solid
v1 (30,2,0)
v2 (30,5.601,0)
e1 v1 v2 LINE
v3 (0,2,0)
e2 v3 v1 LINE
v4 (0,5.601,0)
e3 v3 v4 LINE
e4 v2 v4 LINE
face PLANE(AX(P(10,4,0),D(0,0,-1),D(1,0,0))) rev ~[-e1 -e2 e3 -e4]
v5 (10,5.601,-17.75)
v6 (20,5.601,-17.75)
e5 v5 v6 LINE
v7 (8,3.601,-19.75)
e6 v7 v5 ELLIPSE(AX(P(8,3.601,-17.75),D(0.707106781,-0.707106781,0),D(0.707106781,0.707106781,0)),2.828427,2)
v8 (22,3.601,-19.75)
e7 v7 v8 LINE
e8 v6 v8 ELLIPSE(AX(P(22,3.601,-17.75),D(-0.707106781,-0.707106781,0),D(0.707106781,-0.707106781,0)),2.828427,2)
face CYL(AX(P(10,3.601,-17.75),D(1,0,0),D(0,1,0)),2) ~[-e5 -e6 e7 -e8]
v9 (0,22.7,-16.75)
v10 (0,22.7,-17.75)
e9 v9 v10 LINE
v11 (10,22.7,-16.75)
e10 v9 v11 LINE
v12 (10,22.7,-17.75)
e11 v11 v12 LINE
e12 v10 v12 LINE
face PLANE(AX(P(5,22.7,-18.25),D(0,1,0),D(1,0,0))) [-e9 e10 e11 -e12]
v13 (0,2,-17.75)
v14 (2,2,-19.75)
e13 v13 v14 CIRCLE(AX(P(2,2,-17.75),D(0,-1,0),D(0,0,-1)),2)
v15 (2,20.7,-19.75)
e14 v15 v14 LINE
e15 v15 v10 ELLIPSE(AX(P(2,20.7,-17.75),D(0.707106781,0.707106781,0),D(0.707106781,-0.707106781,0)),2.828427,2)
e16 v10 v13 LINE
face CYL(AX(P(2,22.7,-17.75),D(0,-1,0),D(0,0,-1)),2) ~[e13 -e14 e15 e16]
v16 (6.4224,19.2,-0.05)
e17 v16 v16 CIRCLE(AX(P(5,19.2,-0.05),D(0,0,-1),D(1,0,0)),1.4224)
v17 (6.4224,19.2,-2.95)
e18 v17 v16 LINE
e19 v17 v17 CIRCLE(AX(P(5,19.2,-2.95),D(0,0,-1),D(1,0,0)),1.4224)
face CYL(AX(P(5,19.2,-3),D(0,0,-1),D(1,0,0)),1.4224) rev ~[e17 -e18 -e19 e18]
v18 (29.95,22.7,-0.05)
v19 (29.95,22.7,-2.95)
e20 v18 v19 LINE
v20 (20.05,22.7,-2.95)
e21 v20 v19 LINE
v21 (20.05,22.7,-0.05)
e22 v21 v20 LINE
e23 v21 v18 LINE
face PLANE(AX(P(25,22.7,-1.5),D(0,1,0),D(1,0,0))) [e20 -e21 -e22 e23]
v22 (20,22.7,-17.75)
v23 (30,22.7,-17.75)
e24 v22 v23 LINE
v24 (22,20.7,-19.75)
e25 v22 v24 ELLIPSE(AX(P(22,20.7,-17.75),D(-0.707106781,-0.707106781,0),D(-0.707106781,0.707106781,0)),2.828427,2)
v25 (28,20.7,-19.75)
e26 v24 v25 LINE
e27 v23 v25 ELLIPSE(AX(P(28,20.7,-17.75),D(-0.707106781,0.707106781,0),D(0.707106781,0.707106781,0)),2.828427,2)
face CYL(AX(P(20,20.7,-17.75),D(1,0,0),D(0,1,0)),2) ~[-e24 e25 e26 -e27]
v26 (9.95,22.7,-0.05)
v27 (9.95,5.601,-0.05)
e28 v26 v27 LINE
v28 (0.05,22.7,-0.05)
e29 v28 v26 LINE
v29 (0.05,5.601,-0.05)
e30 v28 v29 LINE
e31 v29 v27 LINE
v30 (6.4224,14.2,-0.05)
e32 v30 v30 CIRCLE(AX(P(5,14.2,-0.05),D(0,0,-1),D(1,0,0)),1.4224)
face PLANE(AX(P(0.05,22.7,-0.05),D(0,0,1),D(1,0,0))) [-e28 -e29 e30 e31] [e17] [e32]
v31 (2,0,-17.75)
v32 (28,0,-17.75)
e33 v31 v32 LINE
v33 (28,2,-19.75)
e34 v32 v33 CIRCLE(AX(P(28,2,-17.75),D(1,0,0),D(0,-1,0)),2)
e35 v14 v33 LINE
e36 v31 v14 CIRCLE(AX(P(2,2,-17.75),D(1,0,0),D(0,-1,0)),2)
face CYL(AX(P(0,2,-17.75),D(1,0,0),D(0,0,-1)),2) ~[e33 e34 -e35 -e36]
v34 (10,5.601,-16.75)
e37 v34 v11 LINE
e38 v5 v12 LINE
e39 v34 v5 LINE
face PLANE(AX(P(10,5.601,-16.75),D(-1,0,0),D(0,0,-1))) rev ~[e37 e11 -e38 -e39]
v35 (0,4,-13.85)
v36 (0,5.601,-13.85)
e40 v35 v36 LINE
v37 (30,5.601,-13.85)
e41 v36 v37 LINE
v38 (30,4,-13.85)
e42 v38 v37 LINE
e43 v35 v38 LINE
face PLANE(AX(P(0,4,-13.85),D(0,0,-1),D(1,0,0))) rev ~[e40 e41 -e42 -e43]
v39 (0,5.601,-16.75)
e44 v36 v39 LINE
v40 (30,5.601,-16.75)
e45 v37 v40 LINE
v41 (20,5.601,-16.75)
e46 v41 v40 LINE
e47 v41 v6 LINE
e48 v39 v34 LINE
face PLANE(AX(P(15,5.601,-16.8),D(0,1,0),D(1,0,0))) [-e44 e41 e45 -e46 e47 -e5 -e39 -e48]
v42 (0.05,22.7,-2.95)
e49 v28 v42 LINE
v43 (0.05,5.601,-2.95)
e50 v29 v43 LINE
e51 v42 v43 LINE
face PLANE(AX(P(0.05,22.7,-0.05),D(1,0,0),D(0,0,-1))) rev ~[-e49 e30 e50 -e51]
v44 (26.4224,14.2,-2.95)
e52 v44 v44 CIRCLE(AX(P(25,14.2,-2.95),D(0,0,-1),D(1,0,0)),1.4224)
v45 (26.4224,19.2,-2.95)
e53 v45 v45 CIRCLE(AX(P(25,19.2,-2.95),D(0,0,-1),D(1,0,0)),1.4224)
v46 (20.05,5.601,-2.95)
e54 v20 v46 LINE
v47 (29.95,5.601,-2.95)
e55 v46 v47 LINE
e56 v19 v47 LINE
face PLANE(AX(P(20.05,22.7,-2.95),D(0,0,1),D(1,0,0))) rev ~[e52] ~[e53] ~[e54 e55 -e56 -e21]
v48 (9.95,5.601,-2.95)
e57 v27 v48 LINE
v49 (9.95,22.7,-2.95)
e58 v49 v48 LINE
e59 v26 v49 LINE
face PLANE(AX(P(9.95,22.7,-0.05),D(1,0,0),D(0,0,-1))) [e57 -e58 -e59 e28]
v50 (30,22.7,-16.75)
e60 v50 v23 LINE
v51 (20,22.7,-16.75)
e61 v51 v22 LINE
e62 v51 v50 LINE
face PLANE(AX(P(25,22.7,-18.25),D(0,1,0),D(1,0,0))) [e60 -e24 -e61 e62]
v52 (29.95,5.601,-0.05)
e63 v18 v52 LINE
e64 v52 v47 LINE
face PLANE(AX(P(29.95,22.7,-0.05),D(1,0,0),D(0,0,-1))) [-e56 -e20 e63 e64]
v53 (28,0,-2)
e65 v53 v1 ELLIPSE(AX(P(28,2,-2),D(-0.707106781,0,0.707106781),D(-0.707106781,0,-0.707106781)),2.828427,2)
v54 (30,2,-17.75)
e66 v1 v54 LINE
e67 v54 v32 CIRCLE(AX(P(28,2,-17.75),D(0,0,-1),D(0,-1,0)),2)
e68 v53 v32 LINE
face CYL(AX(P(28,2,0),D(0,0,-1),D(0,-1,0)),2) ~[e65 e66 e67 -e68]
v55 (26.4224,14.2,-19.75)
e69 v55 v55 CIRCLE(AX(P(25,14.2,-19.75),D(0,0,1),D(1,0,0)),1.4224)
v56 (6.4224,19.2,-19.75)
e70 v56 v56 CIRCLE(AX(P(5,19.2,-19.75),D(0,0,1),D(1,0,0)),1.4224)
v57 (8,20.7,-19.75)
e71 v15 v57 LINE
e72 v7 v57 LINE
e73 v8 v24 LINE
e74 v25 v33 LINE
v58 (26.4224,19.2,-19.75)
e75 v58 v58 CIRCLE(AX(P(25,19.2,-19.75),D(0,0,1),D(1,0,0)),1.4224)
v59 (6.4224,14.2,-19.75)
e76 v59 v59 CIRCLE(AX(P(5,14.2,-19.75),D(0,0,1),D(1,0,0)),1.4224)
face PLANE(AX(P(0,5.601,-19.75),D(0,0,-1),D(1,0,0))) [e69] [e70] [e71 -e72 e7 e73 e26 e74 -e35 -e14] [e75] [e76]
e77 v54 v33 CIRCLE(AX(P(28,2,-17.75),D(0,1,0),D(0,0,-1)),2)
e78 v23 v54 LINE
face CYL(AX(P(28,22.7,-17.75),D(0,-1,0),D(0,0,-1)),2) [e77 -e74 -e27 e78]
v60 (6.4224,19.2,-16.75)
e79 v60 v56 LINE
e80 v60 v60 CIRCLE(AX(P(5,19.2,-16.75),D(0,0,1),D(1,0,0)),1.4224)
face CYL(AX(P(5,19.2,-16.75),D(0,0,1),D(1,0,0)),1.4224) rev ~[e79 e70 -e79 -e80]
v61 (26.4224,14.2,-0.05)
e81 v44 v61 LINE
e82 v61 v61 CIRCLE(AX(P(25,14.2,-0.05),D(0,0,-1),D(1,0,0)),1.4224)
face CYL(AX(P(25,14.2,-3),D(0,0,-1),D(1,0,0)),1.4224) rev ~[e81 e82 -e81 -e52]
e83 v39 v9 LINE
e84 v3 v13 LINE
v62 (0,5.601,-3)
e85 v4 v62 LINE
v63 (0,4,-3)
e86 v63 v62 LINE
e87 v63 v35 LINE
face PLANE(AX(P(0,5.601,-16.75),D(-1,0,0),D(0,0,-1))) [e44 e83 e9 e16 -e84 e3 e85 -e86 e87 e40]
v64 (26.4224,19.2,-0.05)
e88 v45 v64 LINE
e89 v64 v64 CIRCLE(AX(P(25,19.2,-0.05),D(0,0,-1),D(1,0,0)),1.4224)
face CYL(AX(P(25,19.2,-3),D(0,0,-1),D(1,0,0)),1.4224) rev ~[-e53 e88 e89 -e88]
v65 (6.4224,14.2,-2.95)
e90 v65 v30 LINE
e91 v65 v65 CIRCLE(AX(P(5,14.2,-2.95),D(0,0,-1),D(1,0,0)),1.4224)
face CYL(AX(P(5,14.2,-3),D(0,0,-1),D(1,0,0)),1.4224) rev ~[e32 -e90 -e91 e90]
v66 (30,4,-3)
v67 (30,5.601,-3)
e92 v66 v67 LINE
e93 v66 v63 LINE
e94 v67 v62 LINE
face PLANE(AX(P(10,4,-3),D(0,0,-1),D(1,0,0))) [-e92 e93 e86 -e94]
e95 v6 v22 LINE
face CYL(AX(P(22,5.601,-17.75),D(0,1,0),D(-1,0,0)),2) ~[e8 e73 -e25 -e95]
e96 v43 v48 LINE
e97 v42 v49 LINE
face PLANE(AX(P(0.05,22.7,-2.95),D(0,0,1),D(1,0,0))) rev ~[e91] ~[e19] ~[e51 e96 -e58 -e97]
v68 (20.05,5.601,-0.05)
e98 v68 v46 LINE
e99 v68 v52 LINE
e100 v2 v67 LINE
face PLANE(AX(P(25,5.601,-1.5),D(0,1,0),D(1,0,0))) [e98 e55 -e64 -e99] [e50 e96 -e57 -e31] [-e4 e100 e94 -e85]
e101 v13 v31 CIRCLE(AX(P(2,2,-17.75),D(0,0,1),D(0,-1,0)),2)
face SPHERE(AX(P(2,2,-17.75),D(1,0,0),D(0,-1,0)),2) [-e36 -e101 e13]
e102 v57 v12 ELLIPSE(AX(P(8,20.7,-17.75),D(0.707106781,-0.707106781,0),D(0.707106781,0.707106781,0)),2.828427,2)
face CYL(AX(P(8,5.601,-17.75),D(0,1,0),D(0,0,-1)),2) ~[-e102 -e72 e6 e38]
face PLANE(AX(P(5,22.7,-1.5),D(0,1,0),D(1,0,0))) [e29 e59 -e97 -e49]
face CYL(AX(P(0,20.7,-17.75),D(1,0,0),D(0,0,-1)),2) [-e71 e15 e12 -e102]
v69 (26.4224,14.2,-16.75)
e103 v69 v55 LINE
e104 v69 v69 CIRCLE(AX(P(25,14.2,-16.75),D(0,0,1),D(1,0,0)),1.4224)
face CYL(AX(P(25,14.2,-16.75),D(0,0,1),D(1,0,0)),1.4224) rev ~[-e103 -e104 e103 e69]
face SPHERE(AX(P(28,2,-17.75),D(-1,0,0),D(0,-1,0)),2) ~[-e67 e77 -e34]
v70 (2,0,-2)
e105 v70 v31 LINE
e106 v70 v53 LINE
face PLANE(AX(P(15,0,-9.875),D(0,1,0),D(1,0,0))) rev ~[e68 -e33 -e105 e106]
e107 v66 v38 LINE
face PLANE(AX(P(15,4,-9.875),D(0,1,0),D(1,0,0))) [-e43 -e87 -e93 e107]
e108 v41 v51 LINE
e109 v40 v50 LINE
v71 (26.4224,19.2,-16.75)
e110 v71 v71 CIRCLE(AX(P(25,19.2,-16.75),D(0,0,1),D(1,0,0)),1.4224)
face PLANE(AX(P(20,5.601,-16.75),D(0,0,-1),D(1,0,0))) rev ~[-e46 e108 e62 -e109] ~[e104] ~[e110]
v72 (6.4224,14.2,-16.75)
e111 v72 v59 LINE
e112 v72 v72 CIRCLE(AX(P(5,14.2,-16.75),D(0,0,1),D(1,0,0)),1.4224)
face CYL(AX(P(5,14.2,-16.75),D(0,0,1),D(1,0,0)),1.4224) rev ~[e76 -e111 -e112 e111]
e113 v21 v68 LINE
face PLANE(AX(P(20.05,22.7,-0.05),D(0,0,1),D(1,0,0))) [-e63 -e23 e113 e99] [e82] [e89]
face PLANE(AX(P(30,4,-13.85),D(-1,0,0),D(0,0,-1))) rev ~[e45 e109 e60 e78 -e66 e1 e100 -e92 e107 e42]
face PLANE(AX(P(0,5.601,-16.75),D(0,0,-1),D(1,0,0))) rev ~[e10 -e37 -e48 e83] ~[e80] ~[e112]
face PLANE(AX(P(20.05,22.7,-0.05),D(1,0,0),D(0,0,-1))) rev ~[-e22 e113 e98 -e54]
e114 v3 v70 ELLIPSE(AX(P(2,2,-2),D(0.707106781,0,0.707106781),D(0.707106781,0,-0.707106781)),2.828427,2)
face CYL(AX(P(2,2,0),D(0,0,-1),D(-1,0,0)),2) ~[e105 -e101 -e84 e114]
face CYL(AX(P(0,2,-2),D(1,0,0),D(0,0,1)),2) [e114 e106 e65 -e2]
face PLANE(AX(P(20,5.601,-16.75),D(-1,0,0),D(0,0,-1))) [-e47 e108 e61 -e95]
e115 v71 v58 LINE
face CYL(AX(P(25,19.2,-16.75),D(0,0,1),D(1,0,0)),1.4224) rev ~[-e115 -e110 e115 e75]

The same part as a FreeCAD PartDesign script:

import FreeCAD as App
import Part
import Sketcher
from FreeCAD import Vector


def edges_at(feature, points):
    """Names of the edges that pass closest to the given points."""
    edges = feature.Shape.Edges
    near = lambda p: min(range(len(edges)), key=lambda i: edges[i].distToShape(Part.Vertex(*p))[0])
    return sorted({f"Edge{near(p) + 1}" for p in points})

doc = App.newDocument("Part")
body = doc.addObject("PartDesign::Body", "Body")

# Sketch on XZ plane
sketch1 = body.newObject("Sketcher::SketchObject", "Sketch")
sketch1.AttachmentSupport = (doc.getObject("XZ_Plane"), [""])
sketch1.MapMode = "FlatFace"
sketch1.addGeometry(Part.LineSegment(Vector(0, -20, 0), Vector(0, 0, 0)), False)
sketch1.addGeometry(Part.LineSegment(Vector(0, 0, 0), Vector(30, 0, 0)), False)
sketch1.addGeometry(Part.LineSegment(Vector(30, 0, 0), Vector(30, -20, 0)), False)
sketch1.addGeometry(Part.LineSegment(Vector(30, -20, 0), Vector(0, -20, 0)), False)
sketch1.addConstraint(Sketcher.Constraint("Coincident", 0, 2, 1, 1))
sketch1.addConstraint(Sketcher.Constraint("Coincident", 1, 2, 2, 1))
sketch1.addConstraint(Sketcher.Constraint("Coincident", 2, 2, 3, 1))
sketch1.addConstraint(Sketcher.Constraint("Coincident", 3, 2, 0, 1))
sketch1.addConstraint(Sketcher.Constraint("Vertical", 0))
sketch1.addConstraint(Sketcher.Constraint("Horizontal", 1))
sketch1.addConstraint(Sketcher.Constraint("Vertical", 2))
sketch1.addConstraint(Sketcher.Constraint("Horizontal", 3))
sketch1.addConstraint(Sketcher.Constraint("Coincident", 0, 2, -1, 1))
sketch1.addConstraint(Sketcher.Constraint("DistanceX", 1, 1, 1, 2, 30.0))
sketch1.addConstraint(Sketcher.Constraint("DistanceY", 0, 1, 0, 2, 19.75))
pad1 = body.newObject("PartDesign::Pad", "Pad")
pad1.Profile = sketch1
pad1.Length = 4
pad1.Reversed = True

# Sketch on XZ plane
sketch2 = body.newObject("Sketcher::SketchObject", "Sketch001")
sketch2.AttachmentSupport = (doc.getObject("XZ_Plane"), [""])
sketch2.MapMode = "FlatFace"
sketch2.AttachmentOffset = App.Placement(Vector(0, 0, -4), App.Rotation())
sketch2.addGeometry(Part.LineSegment(Vector(0, -20, 0), Vector(0, -14, 0)), False)
sketch2.addGeometry(Part.LineSegment(Vector(0, -14, 0), Vector(30, -14, 0)), False)
sketch2.addGeometry(Part.LineSegment(Vector(30, -14, 0), Vector(30, -20, 0)), False)
sketch2.addGeometry(Part.LineSegment(Vector(30, -20, 0), Vector(0, -20, 0)), False)
sketch2.addConstraint(Sketcher.Constraint("Coincident", 0, 2, 1, 1))
sketch2.addConstraint(Sketcher.Constraint("Coincident", 1, 2, 2, 1))
sketch2.addConstraint(Sketcher.Constraint("Coincident", 2, 2, 3, 1))
sketch2.addConstraint(Sketcher.Constraint("Coincident", 3, 2, 0, 1))
sketch2.addConstraint(Sketcher.Constraint("Vertical", 0))
sketch2.addConstraint(Sketcher.Constraint("Horizontal", 1))
sketch2.addConstraint(Sketcher.Constraint("Vertical", 2))
sketch2.addConstraint(Sketcher.Constraint("Horizontal", 3))
sketch2.addConstraint(Sketcher.Constraint("PointOnObject", 0, 2, -2))
sketch2.addConstraint(Sketcher.Constraint("DistanceX", 1, 1, 1, 2, 30.0))
sketch2.addConstraint(Sketcher.Constraint("DistanceY", 0, 1, 0, 2, 5.9))
sketch2.addConstraint(Sketcher.Constraint("DistanceY", 0, 2, -1, 1, 13.85))
pad2 = body.newObject("PartDesign::Pad", "Pad001")
pad2.Profile = sketch2
pad2.Length = 1.601
pad2.Reversed = True

# Sketch on XZ plane
sketch3 = body.newObject("Sketcher::SketchObject", "Sketch002")
sketch3.AttachmentSupport = (doc.getObject("XZ_Plane"), [""])
sketch3.MapMode = "FlatFace"
sketch3.AttachmentOffset = App.Placement(Vector(0, 0, -4), App.Rotation())
sketch3.addGeometry(Part.LineSegment(Vector(0, -3, 0), Vector(0, 0, 0)), False)
sketch3.addGeometry(Part.LineSegment(Vector(0, 0, 0), Vector(10, 0, 0)), False)
sketch3.addGeometry(Part.LineSegment(Vector(10, 0, 0), Vector(10, -3, 0)), False)
sketch3.addGeometry(Part.LineSegment(Vector(10, -3, 0), Vector(0, -3, 0)), False)
sketch3.addGeometry(Part.LineSegment(Vector(20, -3, 0), Vector(20, 0, 0)), False)
sketch3.addGeometry(Part.LineSegment(Vector(20, 0, 0), Vector(30, 0, 0)), False)
sketch3.addGeometry(Part.LineSegment(Vector(30, 0, 0), Vector(30, -3, 0)), False)
sketch3.addGeometry(Part.LineSegment(Vector(30, -3, 0), Vector(20, -3, 0)), False)
sketch3.addConstraint(Sketcher.Constraint("Coincident", 0, 2, 1, 1))
sketch3.addConstraint(Sketcher.Constraint("Coincident", 1, 2, 2, 1))
sketch3.addConstraint(Sketcher.Constraint("Coincident", 2, 2, 3, 1))
sketch3.addConstraint(Sketcher.Constraint("Coincident", 3, 2, 0, 1))
sketch3.addConstraint(Sketcher.Constraint("Coincident", 4, 2, 5, 1))
sketch3.addConstraint(Sketcher.Constraint("Coincident", 5, 2, 6, 1))
sketch3.addConstraint(Sketcher.Constraint("Coincident", 6, 2, 7, 1))
sketch3.addConstraint(Sketcher.Constraint("Coincident", 7, 2, 4, 1))
sketch3.addConstraint(Sketcher.Constraint("Vertical", 0))
sketch3.addConstraint(Sketcher.Constraint("Horizontal", 1))
sketch3.addConstraint(Sketcher.Constraint("Vertical", 2))
sketch3.addConstraint(Sketcher.Constraint("Horizontal", 3))
sketch3.addConstraint(Sketcher.Constraint("Vertical", 4))
sketch3.addConstraint(Sketcher.Constraint("Horizontal", 5))
sketch3.addConstraint(Sketcher.Constraint("Vertical", 6))
sketch3.addConstraint(Sketcher.Constraint("Horizontal", 7))
sketch3.addConstraint(Sketcher.Constraint("Coincident", 0, 2, -1, 1))
sketch3.addConstraint(Sketcher.Constraint("PointOnObject", 4, 2, -1))
sketch3.addConstraint(Sketcher.Constraint("Horizontal", 3, 2, 6, 2))
sketch3.addConstraint(Sketcher.Constraint("Equal", 3, 5))
sketch3.addConstraint(Sketcher.Constraint("DistanceX", 1, 1, 1, 2, 10.0))
sketch3.addConstraint(Sketcher.Constraint("DistanceY", 0, 1, 0, 2, 3.0))
sketch3.addConstraint(Sketcher.Constraint("DistanceX", -1, 1, 4, 2, 20.0))
pad3 = body.newObject("PartDesign::Pad", "Pad002")
pad3.Profile = sketch3
pad3.Length = 18.7
pad3.Reversed = True

# Sketch on XZ plane
sketch4 = body.newObject("Sketcher::SketchObject", "Sketch003")
sketch4.AttachmentSupport = (doc.getObject("XZ_Plane"), [""])
sketch4.MapMode = "FlatFace"
sketch4.AttachmentOffset = App.Placement(Vector(0, 0, -5.601), App.Rotation())
sketch4.addGeometry(Part.LineSegment(Vector(0, -19.8, 0), Vector(0, -16.8, 0)), False)
sketch4.addGeometry(Part.LineSegment(Vector(0, -16.8, 0), Vector(10, -16.8, 0)), False)
sketch4.addGeometry(Part.LineSegment(Vector(10, -16.8, 0), Vector(10, -19.8, 0)), False)
sketch4.addGeometry(Part.LineSegment(Vector(10, -19.8, 0), Vector(0, -19.8, 0)), False)
sketch4.addGeometry(Part.LineSegment(Vector(20, -19.8, 0), Vector(20, -16.8, 0)), False)
sketch4.addGeometry(Part.LineSegment(Vector(20, -16.8, 0), Vector(30, -16.8, 0)), False)
sketch4.addGeometry(Part.LineSegment(Vector(30, -16.8, 0), Vector(30, -19.8, 0)), False)
sketch4.addGeometry(Part.LineSegment(Vector(30, -19.8, 0), Vector(20, -19.8, 0)), False)
sketch4.addConstraint(Sketcher.Constraint("Coincident", 0, 2, 1, 1))
sketch4.addConstraint(Sketcher.Constraint("Coincident", 1, 2, 2, 1))
sketch4.addConstraint(Sketcher.Constraint("Coincident", 2, 2, 3, 1))
sketch4.addConstraint(Sketcher.Constraint("Coincident", 3, 2, 0, 1))
sketch4.addConstraint(Sketcher.Constraint("Coincident", 4, 2, 5, 1))
sketch4.addConstraint(Sketcher.Constraint("Coincident", 5, 2, 6, 1))
sketch4.addConstraint(Sketcher.Constraint("Coincident", 6, 2, 7, 1))
sketch4.addConstraint(Sketcher.Constraint("Coincident", 7, 2, 4, 1))
sketch4.addConstraint(Sketcher.Constraint("Vertical", 0))
sketch4.addConstraint(Sketcher.Constraint("Horizontal", 1))
sketch4.addConstraint(Sketcher.Constraint("Vertical", 2))
sketch4.addConstraint(Sketcher.Constraint("Horizontal", 3))
sketch4.addConstraint(Sketcher.Constraint("Vertical", 4))
sketch4.addConstraint(Sketcher.Constraint("Horizontal", 5))
sketch4.addConstraint(Sketcher.Constraint("Vertical", 6))
sketch4.addConstraint(Sketcher.Constraint("Horizontal", 7))
sketch4.addConstraint(Sketcher.Constraint("PointOnObject", 0, 2, -2))
sketch4.addConstraint(Sketcher.Constraint("Horizontal", 1, 2, 4, 2))
sketch4.addConstraint(Sketcher.Constraint("Horizontal", 3, 2, 6, 2))
sketch4.addConstraint(Sketcher.Constraint("Equal", 3, 5))
sketch4.addConstraint(Sketcher.Constraint("DistanceX", 1, 1, 1, 2, 10.0))
sketch4.addConstraint(Sketcher.Constraint("DistanceY", 0, 1, 0, 2, 3.0))
sketch4.addConstraint(Sketcher.Constraint("DistanceX", -1, 1, 4, 2, 20.0))
sketch4.addConstraint(Sketcher.Constraint("DistanceY", 0, 2, -1, 1, 16.75))
pad4 = body.newObject("PartDesign::Pad", "Pad003")
pad4.Profile = sketch4
pad4.Length = 17.099
pad4.Reversed = True

# Sketch on XZ plane
sketch5 = body.newObject("Sketcher::SketchObject", "Sketch004")
sketch5.AttachmentSupport = (doc.getObject("XZ_Plane"), [""])
sketch5.MapMode = "FlatFace"
sketch5.AttachmentOffset = App.Placement(Vector(0, 0, -4), App.Rotation())
sketch5.addGeometry(Part.LineSegment(Vector(10, -3, 0), Vector(10, 0, 0)), False)
sketch5.addGeometry(Part.LineSegment(Vector(10, 0, 0), Vector(20, 0, 0)), False)
sketch5.addGeometry(Part.LineSegment(Vector(20, 0, 0), Vector(20, -3, 0)), False)
sketch5.addGeometry(Part.LineSegment(Vector(20, -3, 0), Vector(10, -3, 0)), False)
sketch5.addConstraint(Sketcher.Constraint("Coincident", 0, 2, 1, 1))
sketch5.addConstraint(Sketcher.Constraint("Coincident", 1, 2, 2, 1))
sketch5.addConstraint(Sketcher.Constraint("Coincident", 2, 2, 3, 1))
sketch5.addConstraint(Sketcher.Constraint("Coincident", 3, 2, 0, 1))
sketch5.addConstraint(Sketcher.Constraint("Vertical", 0))
sketch5.addConstraint(Sketcher.Constraint("Horizontal", 1))
sketch5.addConstraint(Sketcher.Constraint("Vertical", 2))
sketch5.addConstraint(Sketcher.Constraint("Horizontal", 3))
sketch5.addConstraint(Sketcher.Constraint("PointOnObject", 0, 2, -1))
sketch5.addConstraint(Sketcher.Constraint("DistanceX", 1, 1, 1, 2, 10.0))
sketch5.addConstraint(Sketcher.Constraint("DistanceY", 0, 1, 0, 2, 3.0))
sketch5.addConstraint(Sketcher.Constraint("DistanceX", -1, 1, 0, 2, 10.0))
pad5 = body.newObject("PartDesign::Pad", "Pad004")
pad5.Profile = sketch5
pad5.Length = 1.601
pad5.Reversed = True
doc.recompute()

fillet = body.newObject("PartDesign::Fillet", "Fillet")
fillet.Base = (pad5, edges_at(pad5, [
    (15, 0, -19.75),
    (30, 0, -9.875),
    (15, 0, 0),
    (10, 14.15, -19.75),
    (5, 22.7, -19.75),
    (0, 0, -9.875),
    (15, 5.601, -19.75),
    (20, 14.15, -19.75),
    (25, 22.7, -19.75),
    (0, 11.35, -19.75),
    (30, 11.35, -19.75),
]))
fillet.Radius = 2

# Sketch on XY plane
sketch6 = body.newObject("Sketcher::SketchObject", "Sketch005")
sketch6.AttachmentSupport = (doc.getObject("XY_Plane"), [""])
sketch6.MapMode = "FlatFace"
sketch6.AttachmentOffset = App.Placement(Vector(0, 0, -16.75), App.Rotation())
sketch6.addGeometry(Part.Circle(Vector(5, 19.2, 0), Vector(0, 0, 1), 1.4), False)
sketch6.addConstraint(Sketcher.Constraint("DistanceX", -1, 1, 0, 3, 5.0))
sketch6.addConstraint(Sketcher.Constraint("Diameter", 0, 2.8448))
sketch6.addConstraint(Sketcher.Constraint("DistanceY", -1, 1, 0, 3, 19.2))
pocket1 = body.newObject("PartDesign::Pocket", "Pocket")
pocket1.Profile = sketch6
pocket1.Type = "UpToFirst"

# Sketch on XY plane
sketch7 = body.newObject("Sketcher::SketchObject", "Sketch006")
sketch7.AttachmentSupport = (doc.getObject("XY_Plane"), [""])
sketch7.MapMode = "FlatFace"
sketch7.AttachmentOffset = App.Placement(Vector(0, 0, -16.75), App.Rotation())
sketch7.addGeometry(Part.Circle(Vector(25, 19.2, 0), Vector(0, 0, 1), 1.4), False)
sketch7.addConstraint(Sketcher.Constraint("DistanceX", -1, 1, 0, 3, 25.0))
sketch7.addConstraint(Sketcher.Constraint("Diameter", 0, 2.8448))
sketch7.addConstraint(Sketcher.Constraint("DistanceY", -1, 1, 0, 3, 19.2))
pocket2 = body.newObject("PartDesign::Pocket", "Pocket001")
pocket2.Profile = sketch7
pocket2.Type = "UpToFirst"

# Sketch on XY plane
sketch8 = body.newObject("Sketcher::SketchObject", "Sketch007")
sketch8.AttachmentSupport = (doc.getObject("XY_Plane"), [""])
sketch8.MapMode = "FlatFace"
sketch8.AttachmentOffset = App.Placement(Vector(0, 0, -16.75), App.Rotation())
sketch8.addGeometry(Part.Circle(Vector(5, 14.2, 0), Vector(0, 0, 1), 1.4), False)
sketch8.addConstraint(Sketcher.Constraint("DistanceX", -1, 1, 0, 3, 5.0))
sketch8.addConstraint(Sketcher.Constraint("Diameter", 0, 2.8448))
sketch8.addConstraint(Sketcher.Constraint("DistanceY", -1, 1, 0, 3, 14.2))
pocket3 = body.newObject("PartDesign::Pocket", "Pocket002")
pocket3.Profile = sketch8
pocket3.Type = "UpToFirst"

# Sketch on XY plane
sketch9 = body.newObject("Sketcher::SketchObject", "Sketch008")
sketch9.AttachmentSupport = (doc.getObject("XY_Plane"), [""])
sketch9.MapMode = "FlatFace"
sketch9.AttachmentOffset = App.Placement(Vector(0, 0, -16.75), App.Rotation())
sketch9.addGeometry(Part.Circle(Vector(25, 14.2, 0), Vector(0, 0, 1), 1.4), False)
sketch9.addConstraint(Sketcher.Constraint("DistanceX", -1, 1, 0, 3, 25.0))
sketch9.addConstraint(Sketcher.Constraint("Diameter", 0, 2.8448))
sketch9.addConstraint(Sketcher.Constraint("DistanceY", -1, 1, 0, 3, 14.2))
pocket4 = body.newObject("PartDesign::Pocket", "Pocket003")
pocket4.Profile = sketch9
pocket4.Type = "UpToFirst"

# Sketch on XY plane
sketch10 = body.newObject("Sketcher::SketchObject", "Sketch009")
sketch10.AttachmentSupport = (doc.getObject("XY_Plane"), [""])
sketch10.MapMode = "FlatFace"
sketch10.AttachmentOffset = App.Placement(Vector(0, 0, -3), App.Rotation())
sketch10.addGeometry(Part.Circle(Vector(25, 19.2, 0), Vector(0, 0, 1), 1.4), False)
sketch10.addConstraint(Sketcher.Constraint("DistanceX", -1, 1, 0, 3, 25.0))
sketch10.addConstraint(Sketcher.Constraint("Diameter", 0, 2.8448))
sketch10.addConstraint(Sketcher.Constraint("DistanceY", -1, 1, 0, 3, 19.2))
pocket5 = body.newObject("PartDesign::Pocket", "Pocket004")
pocket5.Profile = sketch10
pocket5.Type = "UpToFirst"
pocket5.Reversed = True

# Sketch on XY plane
sketch11 = body.newObject("Sketcher::SketchObject", "Sketch010")
sketch11.AttachmentSupport = (doc.getObject("XY_Plane"), [""])
sketch11.MapMode = "FlatFace"
sketch11.AttachmentOffset = App.Placement(Vector(0, 0, -3), App.Rotation())
sketch11.addGeometry(Part.Circle(Vector(5, 19.2, 0), Vector(0, 0, 1), 1.4), False)
sketch11.addConstraint(Sketcher.Constraint("DistanceX", -1, 1, 0, 3, 5.0))
sketch11.addConstraint(Sketcher.Constraint("Diameter", 0, 2.8448))
sketch11.addConstraint(Sketcher.Constraint("DistanceY", -1, 1, 0, 3, 19.2))
pocket6 = body.newObject("PartDesign::Pocket", "Pocket005")
pocket6.Profile = sketch11
pocket6.Type = "UpToFirst"
pocket6.Reversed = True

# Sketch on XY plane
sketch12 = body.newObject("Sketcher::SketchObject", "Sketch011")
sketch12.AttachmentSupport = (doc.getObject("XY_Plane"), [""])
sketch12.MapMode = "FlatFace"
sketch12.AttachmentOffset = App.Placement(Vector(0, 0, -3), App.Rotation())
sketch12.addGeometry(Part.Circle(Vector(5, 14.2, 0), Vector(0, 0, 1), 1.4), False)
sketch12.addConstraint(Sketcher.Constraint("DistanceX", -1, 1, 0, 3, 5.0))
sketch12.addConstraint(Sketcher.Constraint("Diameter", 0, 2.8448))
sketch12.addConstraint(Sketcher.Constraint("DistanceY", -1, 1, 0, 3, 14.2))
pocket7 = body.newObject("PartDesign::Pocket", "Pocket006")
pocket7.Profile = sketch12
pocket7.Type = "UpToFirst"
pocket7.Reversed = True

# Sketch on XY plane
sketch13 = body.newObject("Sketcher::SketchObject", "Sketch012")
sketch13.AttachmentSupport = (doc.getObject("XY_Plane"), [""])
sketch13.MapMode = "FlatFace"
sketch13.AttachmentOffset = App.Placement(Vector(0, 0, -3), App.Rotation())
sketch13.addGeometry(Part.Circle(Vector(25, 14.2, 0), Vector(0, 0, 1), 1.4), False)
sketch13.addConstraint(Sketcher.Constraint("DistanceX", -1, 1, 0, 3, 25.0))
sketch13.addConstraint(Sketcher.Constraint("Diameter", 0, 2.8448))
sketch13.addConstraint(Sketcher.Constraint("DistanceY", -1, 1, 0, 3, 14.2))
pocket8 = body.newObject("PartDesign::Pocket", "Pocket007")
pocket8.Profile = sketch13
pocket8.Type = "UpToFirst"
pocket8.Reversed = True

# Sketch on XZ plane
sketch14 = body.newObject("Sketcher::SketchObject", "Sketch013")
sketch14.AttachmentSupport = (doc.getObject("XZ_Plane"), [""])
sketch14.MapMode = "FlatFace"
sketch14.AttachmentOffset = App.Placement(Vector(0, 0, -22.7), App.Rotation())
sketch14.addGeometry(Part.LineSegment(Vector(0, -3, 0), Vector(0, 0, 0)), False)
sketch14.addGeometry(Part.LineSegment(Vector(0, 0, 0), Vector(10, 0, 0)), False)
sketch14.addGeometry(Part.LineSegment(Vector(10, 0, 0), Vector(10, -3, 0)), False)
sketch14.addGeometry(Part.LineSegment(Vector(10, -3, 0), Vector(0, -3, 0)), False)
sketch14.addGeometry(Part.LineSegment(Vector(9.9, -0.1, 0), Vector(0.1, -0.1, 0)), False)
sketch14.addGeometry(Part.LineSegment(Vector(0.1, -0.1, 0), Vector(0.1, -3, 0)), False)
sketch14.addGeometry(Part.LineSegment(Vector(0.1, -3, 0), Vector(9.9, -3, 0)), False)
sketch14.addGeometry(Part.LineSegment(Vector(9.9, -3, 0), Vector(9.9, -0.1, 0)), False)
sketch14.addGeometry(Part.LineSegment(Vector(20, -3, 0), Vector(20, 0, 0)), False)
sketch14.addGeometry(Part.LineSegment(Vector(20, 0, 0), Vector(30, 0, 0)), False)
sketch14.addGeometry(Part.LineSegment(Vector(30, 0, 0), Vector(30, -3, 0)), False)
sketch14.addGeometry(Part.LineSegment(Vector(30, -3, 0), Vector(20, -3, 0)), False)
sketch14.addGeometry(Part.LineSegment(Vector(29.9, -0.1, 0), Vector(20.1, -0.1, 0)), False)
sketch14.addGeometry(Part.LineSegment(Vector(20.1, -0.1, 0), Vector(20.1, -3, 0)), False)
sketch14.addGeometry(Part.LineSegment(Vector(20.1, -3, 0), Vector(29.9, -3, 0)), False)
sketch14.addGeometry(Part.LineSegment(Vector(29.9, -3, 0), Vector(29.9, -0.1, 0)), False)
sketch14.addConstraint(Sketcher.Constraint("Coincident", 0, 2, 1, 1))
sketch14.addConstraint(Sketcher.Constraint("Coincident", 1, 2, 2, 1))
sketch14.addConstraint(Sketcher.Constraint("Coincident", 2, 2, 3, 1))
sketch14.addConstraint(Sketcher.Constraint("Coincident", 3, 2, 0, 1))
sketch14.addConstraint(Sketcher.Constraint("Coincident", 4, 2, 5, 1))
sketch14.addConstraint(Sketcher.Constraint("Coincident", 5, 2, 6, 1))
sketch14.addConstraint(Sketcher.Constraint("Coincident", 6, 2, 7, 1))
sketch14.addConstraint(Sketcher.Constraint("Coincident", 7, 2, 4, 1))
sketch14.addConstraint(Sketcher.Constraint("Coincident", 8, 2, 9, 1))
sketch14.addConstraint(Sketcher.Constraint("Coincident", 9, 2, 10, 1))
sketch14.addConstraint(Sketcher.Constraint("Coincident", 10, 2, 11, 1))
sketch14.addConstraint(Sketcher.Constraint("Coincident", 11, 2, 8, 1))
sketch14.addConstraint(Sketcher.Constraint("Coincident", 12, 2, 13, 1))
sketch14.addConstraint(Sketcher.Constraint("Coincident", 13, 2, 14, 1))
sketch14.addConstraint(Sketcher.Constraint("Coincident", 14, 2, 15, 1))
sketch14.addConstraint(Sketcher.Constraint("Coincident", 15, 2, 12, 1))
sketch14.addConstraint(Sketcher.Constraint("Vertical", 0))
sketch14.addConstraint(Sketcher.Constraint("Horizontal", 1))
sketch14.addConstraint(Sketcher.Constraint("Vertical", 2))
sketch14.addConstraint(Sketcher.Constraint("Horizontal", 3))
sketch14.addConstraint(Sketcher.Constraint("Horizontal", 4))
sketch14.addConstraint(Sketcher.Constraint("Vertical", 5))
sketch14.addConstraint(Sketcher.Constraint("Horizontal", 6))
sketch14.addConstraint(Sketcher.Constraint("Vertical", 7))
sketch14.addConstraint(Sketcher.Constraint("Vertical", 8))
sketch14.addConstraint(Sketcher.Constraint("Horizontal", 9))
sketch14.addConstraint(Sketcher.Constraint("Vertical", 10))
sketch14.addConstraint(Sketcher.Constraint("Horizontal", 11))
sketch14.addConstraint(Sketcher.Constraint("Horizontal", 12))
sketch14.addConstraint(Sketcher.Constraint("Vertical", 13))
sketch14.addConstraint(Sketcher.Constraint("Horizontal", 14))
sketch14.addConstraint(Sketcher.Constraint("Vertical", 15))
sketch14.addConstraint(Sketcher.Constraint("Coincident", 0, 2, -1, 1))
sketch14.addConstraint(Sketcher.Constraint("PointOnObject", 8, 2, -1))
sketch14.addConstraint(Sketcher.Constraint("Horizontal", 3, 2, 10, 2))
sketch14.addConstraint(Sketcher.Constraint("Horizontal", 7, 2, 12, 2))
sketch14.addConstraint(Sketcher.Constraint("Horizontal", 6, 2, 13, 2))
sketch14.addConstraint(Sketcher.Constraint("Equal", 3, 9))
sketch14.addConstraint(Sketcher.Constraint("Equal", 6, 12))
sketch14.addConstraint(Sketcher.Constraint("DistanceX", 1, 1, 1, 2, 10.0))
sketch14.addConstraint(Sketcher.Constraint("DistanceY", 0, 1, 0, 2, 3.0))
sketch14.addConstraint(Sketcher.Constraint("DistanceX", 4, 2, 4, 1, 9.9))
sketch14.addConstraint(Sketcher.Constraint("DistanceY", 5, 2, 5, 1, 2.9))
sketch14.addConstraint(Sketcher.Constraint("DistanceX", -1, 1, 8, 2, 20.0))
sketch14.addConstraint(Sketcher.Constraint("DistanceX", 7, 2, 12, 2, 10.1))
sketch14.addConstraint(Sketcher.Constraint("DistanceX", -1, 1, 4, 2, 0.05))
sketch14.addConstraint(Sketcher.Constraint("DistanceY", 4, 2, -1, 1, 0.05))
pocket9 = body.newObject("PartDesign::Pocket", "Pocket008")
pocket9.Profile = sketch14
pocket9.Length = 17.099
pocket9.Reversed = True

doc.recompute()
